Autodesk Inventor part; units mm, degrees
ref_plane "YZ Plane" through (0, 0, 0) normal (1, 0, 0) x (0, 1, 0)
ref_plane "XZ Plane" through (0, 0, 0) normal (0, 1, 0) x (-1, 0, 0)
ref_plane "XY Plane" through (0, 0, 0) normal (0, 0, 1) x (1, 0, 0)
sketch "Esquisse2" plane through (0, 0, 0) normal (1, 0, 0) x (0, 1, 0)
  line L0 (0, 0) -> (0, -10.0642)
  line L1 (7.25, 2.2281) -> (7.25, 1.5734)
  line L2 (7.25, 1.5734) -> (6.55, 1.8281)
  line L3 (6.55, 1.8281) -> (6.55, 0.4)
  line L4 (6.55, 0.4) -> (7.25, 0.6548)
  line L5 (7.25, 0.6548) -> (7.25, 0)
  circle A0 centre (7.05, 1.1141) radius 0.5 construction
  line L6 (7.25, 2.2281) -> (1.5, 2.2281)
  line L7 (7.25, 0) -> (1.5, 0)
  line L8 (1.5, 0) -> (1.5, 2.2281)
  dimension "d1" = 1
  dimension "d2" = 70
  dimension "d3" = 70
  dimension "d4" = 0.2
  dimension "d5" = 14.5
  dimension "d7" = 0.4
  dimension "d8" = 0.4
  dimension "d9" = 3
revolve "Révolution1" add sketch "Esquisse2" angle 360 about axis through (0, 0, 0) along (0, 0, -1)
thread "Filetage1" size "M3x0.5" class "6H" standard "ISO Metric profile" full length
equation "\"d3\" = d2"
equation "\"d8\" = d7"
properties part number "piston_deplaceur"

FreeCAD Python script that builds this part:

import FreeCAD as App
import Part
import Sketcher

V = App.Vector

doc = App.newDocument("Part")
body = doc.addObject("PartDesign::Body", "Body")

sketch1 = doc.addObject("Sketcher::SketchObject", "Sketch")
body.addObject(sketch1)
sketch1.AttachmentSupport = (doc.YZ_Plane, [""])
sketch1.MapMode = "FlatFace"
sketch1.addGeometry([
    Part.LineSegment(V(7.2, 1.6, 0), V(7.2, 2.2, 0)),
    Part.LineSegment(V(7.2, 2.2, 0), V(1.5, 2.2, 0)),
    Part.LineSegment(V(1.5, 2.2, 0), V(1.5, 0, 0)),
    Part.LineSegment(V(1.5, 0, 0), V(7.2, 0, 0)),
    Part.LineSegment(V(7.2, 0, 0), V(7.2, 0.7, 0)),
    Part.LineSegment(V(7.2, 0.7, 0), V(6.5, 0.4, 0)),
    Part.LineSegment(V(6.5, 0.4, 0), V(6.5, 1.8, 0)),
    Part.LineSegment(V(6.5, 1.8, 0), V(7.2, 1.6, 0)),
], False)
sketch1.addConstraint([
    Sketcher.Constraint("Coincident", 0, 2, 1, 1),
    Sketcher.Constraint("Coincident", 1, 2, 2, 1),
    Sketcher.Constraint("Coincident", 2, 2, 3, 1),
    Sketcher.Constraint("Coincident", 3, 2, 4, 1),
    Sketcher.Constraint("Coincident", 4, 2, 5, 1),
    Sketcher.Constraint("Coincident", 5, 2, 6, 1),
    Sketcher.Constraint("Coincident", 6, 2, 7, 1),
    Sketcher.Constraint("Coincident", 7, 2, 0, 1),
    Sketcher.Constraint("Vertical", 0),
    Sketcher.Constraint("Horizontal", 1),
    Sketcher.Constraint("Vertical", 2),
    Sketcher.Constraint("Horizontal", 3),
    Sketcher.Constraint("Vertical", 4),
    Sketcher.Constraint("Vertical", 6),
    Sketcher.Constraint("PointOnObject", 2, 2, -1),
    Sketcher.Constraint("Vertical", 0, 2, 3, 2),
    Sketcher.Constraint("Equal", 0, 4),
    Sketcher.Constraint("Equal", 5, 7),
    Sketcher.Constraint("DistanceY", -1, 1, 5, 2, 0.4),
    Sketcher.Constraint("DistanceX", 1, 2, 1, 1, 5.75),
    Sketcher.Constraint("DistanceX", -1, 1, 1, 2, 1.5),
    Sketcher.Constraint("DistanceX", 5, 2, 4, 2, 0.7),
    Sketcher.Constraint("DistanceY", 2, 2, 2, 1, 2.228),
    Sketcher.Constraint("Distance", 5, 0.745),
])
revolution = doc.addObject("PartDesign::Revolution", "Revolution")
body.addObject(revolution)
revolution.Profile = sketch1
revolution.ReferenceAxis = (sketch1, ["V_Axis"])
revolution.Angle = 360

doc.recompute()
